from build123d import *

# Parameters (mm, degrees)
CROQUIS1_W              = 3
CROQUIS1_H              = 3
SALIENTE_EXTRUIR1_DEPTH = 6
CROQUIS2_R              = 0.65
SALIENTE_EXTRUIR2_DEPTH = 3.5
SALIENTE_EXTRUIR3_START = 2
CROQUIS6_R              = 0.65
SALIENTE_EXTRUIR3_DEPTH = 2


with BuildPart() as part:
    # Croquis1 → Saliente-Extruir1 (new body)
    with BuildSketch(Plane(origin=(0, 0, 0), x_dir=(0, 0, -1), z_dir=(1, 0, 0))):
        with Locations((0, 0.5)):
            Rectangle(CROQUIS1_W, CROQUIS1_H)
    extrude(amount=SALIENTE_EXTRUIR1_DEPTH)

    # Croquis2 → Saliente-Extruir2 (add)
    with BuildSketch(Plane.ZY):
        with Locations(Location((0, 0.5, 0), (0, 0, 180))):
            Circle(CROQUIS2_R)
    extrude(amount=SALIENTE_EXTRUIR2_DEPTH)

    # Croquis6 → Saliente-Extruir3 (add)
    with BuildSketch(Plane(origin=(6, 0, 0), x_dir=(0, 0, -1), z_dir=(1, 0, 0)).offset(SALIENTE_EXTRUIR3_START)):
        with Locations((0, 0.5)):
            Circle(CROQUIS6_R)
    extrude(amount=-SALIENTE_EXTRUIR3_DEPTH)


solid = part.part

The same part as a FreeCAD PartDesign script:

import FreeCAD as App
import Part
import Sketcher

V = App.Vector


def add_polygon(sketch, points):
    """Adds a closed chain of lines whose ends are joined by coincident constraints."""
    first, n = sketch.GeometryCount, len(points)
    for a, b in zip(points, points[1:] + points[:1]):
        sketch.addGeometry(Part.LineSegment(App.Vector(*a, 0), App.Vector(*b, 0)), False)
    for i in range(n):
        sketch.addConstraint(Sketcher.Constraint("Coincident", first + i, 2, first + (i + 1) % n, 1))

doc = App.newDocument("Part")
body = doc.addObject("PartDesign::Body", "Body")

# Sketch on YZ plane
sketch1 = body.newObject("Sketcher::SketchObject", "Sketch")
sketch1.AttachmentSupport = (doc.getObject("YZ_Plane"), [""])
sketch1.MapMode = "FlatFace"
add_polygon(sketch1, [(2, 1.5), (-1, 1.5), (-1, -1.5), (2, -1.5)])  # lines 0-3
sketch1.addConstraint(Sketcher.Constraint("Horizontal", 0))
sketch1.addConstraint(Sketcher.Constraint("Vertical", 1))
sketch1.addConstraint(Sketcher.Constraint("Horizontal", 2))
sketch1.addConstraint(Sketcher.Constraint("Vertical", 3))
sketch1.addConstraint(Sketcher.Constraint("Equal", 2, 1))
sketch1.addConstraint(Sketcher.Constraint("DistanceX", 0, 2, 0, 1, 3.0))
sketch1.addConstraint(Sketcher.Constraint("DistanceX", 0, 2, -1, 1, 1.0))
sketch1.addConstraint(Sketcher.Constraint("DistanceY", -1, 1, 0, 2, 1.5))
pad1 = body.newObject("PartDesign::Pad", "Pad")
pad1.Profile = sketch1
pad1.Length = 6

# Sketch on YZ plane
sketch2 = body.newObject("Sketcher::SketchObject", "Sketch001")
sketch2.AttachmentSupport = (doc.getObject("YZ_Plane"), [""])
sketch2.MapMode = "FlatFace"
sketch2.addGeometry(Part.Circle(V(0.5, 0, 0), V(0, 0, 1), 0.7), False)
sketch2.addConstraint(Sketcher.Constraint("PointOnObject", 0, 3, -1))
sketch2.addConstraint(Sketcher.Constraint("Diameter", 0, 1.3))
sketch2.addConstraint(Sketcher.Constraint("DistanceX", -1, 1, 0, 3, 0.5))
pad2 = body.newObject("PartDesign::Pad", "Pad001")
pad2.Profile = sketch2
pad2.Length = 3.5
pad2.Reversed = True

# Sketch on YZ plane
sketch3 = body.newObject("Sketcher::SketchObject", "Sketch002")
sketch3.AttachmentSupport = (doc.getObject("YZ_Plane"), [""])
sketch3.MapMode = "FlatFace"
sketch3.AttachmentOffset = App.Placement(V(0, 0, 8), App.Rotation())
sketch3.addGeometry(Part.Circle(V(0.5, 0, 0), V(0, 0, 1), 0.7), False)
sketch3.addConstraint(Sketcher.Constraint("PointOnObject", 0, 3, -1))
sketch3.addConstraint(Sketcher.Constraint("Diameter", 0, 1.3))
sketch3.addConstraint(Sketcher.Constraint("DistanceX", -1, 1, 0, 3, 0.5))
pad3 = body.newObject("PartDesign::Pad", "Pad002")
pad3.Profile = sketch3
pad3.Length = 2
pad3.Reversed = True

doc.recompute()
